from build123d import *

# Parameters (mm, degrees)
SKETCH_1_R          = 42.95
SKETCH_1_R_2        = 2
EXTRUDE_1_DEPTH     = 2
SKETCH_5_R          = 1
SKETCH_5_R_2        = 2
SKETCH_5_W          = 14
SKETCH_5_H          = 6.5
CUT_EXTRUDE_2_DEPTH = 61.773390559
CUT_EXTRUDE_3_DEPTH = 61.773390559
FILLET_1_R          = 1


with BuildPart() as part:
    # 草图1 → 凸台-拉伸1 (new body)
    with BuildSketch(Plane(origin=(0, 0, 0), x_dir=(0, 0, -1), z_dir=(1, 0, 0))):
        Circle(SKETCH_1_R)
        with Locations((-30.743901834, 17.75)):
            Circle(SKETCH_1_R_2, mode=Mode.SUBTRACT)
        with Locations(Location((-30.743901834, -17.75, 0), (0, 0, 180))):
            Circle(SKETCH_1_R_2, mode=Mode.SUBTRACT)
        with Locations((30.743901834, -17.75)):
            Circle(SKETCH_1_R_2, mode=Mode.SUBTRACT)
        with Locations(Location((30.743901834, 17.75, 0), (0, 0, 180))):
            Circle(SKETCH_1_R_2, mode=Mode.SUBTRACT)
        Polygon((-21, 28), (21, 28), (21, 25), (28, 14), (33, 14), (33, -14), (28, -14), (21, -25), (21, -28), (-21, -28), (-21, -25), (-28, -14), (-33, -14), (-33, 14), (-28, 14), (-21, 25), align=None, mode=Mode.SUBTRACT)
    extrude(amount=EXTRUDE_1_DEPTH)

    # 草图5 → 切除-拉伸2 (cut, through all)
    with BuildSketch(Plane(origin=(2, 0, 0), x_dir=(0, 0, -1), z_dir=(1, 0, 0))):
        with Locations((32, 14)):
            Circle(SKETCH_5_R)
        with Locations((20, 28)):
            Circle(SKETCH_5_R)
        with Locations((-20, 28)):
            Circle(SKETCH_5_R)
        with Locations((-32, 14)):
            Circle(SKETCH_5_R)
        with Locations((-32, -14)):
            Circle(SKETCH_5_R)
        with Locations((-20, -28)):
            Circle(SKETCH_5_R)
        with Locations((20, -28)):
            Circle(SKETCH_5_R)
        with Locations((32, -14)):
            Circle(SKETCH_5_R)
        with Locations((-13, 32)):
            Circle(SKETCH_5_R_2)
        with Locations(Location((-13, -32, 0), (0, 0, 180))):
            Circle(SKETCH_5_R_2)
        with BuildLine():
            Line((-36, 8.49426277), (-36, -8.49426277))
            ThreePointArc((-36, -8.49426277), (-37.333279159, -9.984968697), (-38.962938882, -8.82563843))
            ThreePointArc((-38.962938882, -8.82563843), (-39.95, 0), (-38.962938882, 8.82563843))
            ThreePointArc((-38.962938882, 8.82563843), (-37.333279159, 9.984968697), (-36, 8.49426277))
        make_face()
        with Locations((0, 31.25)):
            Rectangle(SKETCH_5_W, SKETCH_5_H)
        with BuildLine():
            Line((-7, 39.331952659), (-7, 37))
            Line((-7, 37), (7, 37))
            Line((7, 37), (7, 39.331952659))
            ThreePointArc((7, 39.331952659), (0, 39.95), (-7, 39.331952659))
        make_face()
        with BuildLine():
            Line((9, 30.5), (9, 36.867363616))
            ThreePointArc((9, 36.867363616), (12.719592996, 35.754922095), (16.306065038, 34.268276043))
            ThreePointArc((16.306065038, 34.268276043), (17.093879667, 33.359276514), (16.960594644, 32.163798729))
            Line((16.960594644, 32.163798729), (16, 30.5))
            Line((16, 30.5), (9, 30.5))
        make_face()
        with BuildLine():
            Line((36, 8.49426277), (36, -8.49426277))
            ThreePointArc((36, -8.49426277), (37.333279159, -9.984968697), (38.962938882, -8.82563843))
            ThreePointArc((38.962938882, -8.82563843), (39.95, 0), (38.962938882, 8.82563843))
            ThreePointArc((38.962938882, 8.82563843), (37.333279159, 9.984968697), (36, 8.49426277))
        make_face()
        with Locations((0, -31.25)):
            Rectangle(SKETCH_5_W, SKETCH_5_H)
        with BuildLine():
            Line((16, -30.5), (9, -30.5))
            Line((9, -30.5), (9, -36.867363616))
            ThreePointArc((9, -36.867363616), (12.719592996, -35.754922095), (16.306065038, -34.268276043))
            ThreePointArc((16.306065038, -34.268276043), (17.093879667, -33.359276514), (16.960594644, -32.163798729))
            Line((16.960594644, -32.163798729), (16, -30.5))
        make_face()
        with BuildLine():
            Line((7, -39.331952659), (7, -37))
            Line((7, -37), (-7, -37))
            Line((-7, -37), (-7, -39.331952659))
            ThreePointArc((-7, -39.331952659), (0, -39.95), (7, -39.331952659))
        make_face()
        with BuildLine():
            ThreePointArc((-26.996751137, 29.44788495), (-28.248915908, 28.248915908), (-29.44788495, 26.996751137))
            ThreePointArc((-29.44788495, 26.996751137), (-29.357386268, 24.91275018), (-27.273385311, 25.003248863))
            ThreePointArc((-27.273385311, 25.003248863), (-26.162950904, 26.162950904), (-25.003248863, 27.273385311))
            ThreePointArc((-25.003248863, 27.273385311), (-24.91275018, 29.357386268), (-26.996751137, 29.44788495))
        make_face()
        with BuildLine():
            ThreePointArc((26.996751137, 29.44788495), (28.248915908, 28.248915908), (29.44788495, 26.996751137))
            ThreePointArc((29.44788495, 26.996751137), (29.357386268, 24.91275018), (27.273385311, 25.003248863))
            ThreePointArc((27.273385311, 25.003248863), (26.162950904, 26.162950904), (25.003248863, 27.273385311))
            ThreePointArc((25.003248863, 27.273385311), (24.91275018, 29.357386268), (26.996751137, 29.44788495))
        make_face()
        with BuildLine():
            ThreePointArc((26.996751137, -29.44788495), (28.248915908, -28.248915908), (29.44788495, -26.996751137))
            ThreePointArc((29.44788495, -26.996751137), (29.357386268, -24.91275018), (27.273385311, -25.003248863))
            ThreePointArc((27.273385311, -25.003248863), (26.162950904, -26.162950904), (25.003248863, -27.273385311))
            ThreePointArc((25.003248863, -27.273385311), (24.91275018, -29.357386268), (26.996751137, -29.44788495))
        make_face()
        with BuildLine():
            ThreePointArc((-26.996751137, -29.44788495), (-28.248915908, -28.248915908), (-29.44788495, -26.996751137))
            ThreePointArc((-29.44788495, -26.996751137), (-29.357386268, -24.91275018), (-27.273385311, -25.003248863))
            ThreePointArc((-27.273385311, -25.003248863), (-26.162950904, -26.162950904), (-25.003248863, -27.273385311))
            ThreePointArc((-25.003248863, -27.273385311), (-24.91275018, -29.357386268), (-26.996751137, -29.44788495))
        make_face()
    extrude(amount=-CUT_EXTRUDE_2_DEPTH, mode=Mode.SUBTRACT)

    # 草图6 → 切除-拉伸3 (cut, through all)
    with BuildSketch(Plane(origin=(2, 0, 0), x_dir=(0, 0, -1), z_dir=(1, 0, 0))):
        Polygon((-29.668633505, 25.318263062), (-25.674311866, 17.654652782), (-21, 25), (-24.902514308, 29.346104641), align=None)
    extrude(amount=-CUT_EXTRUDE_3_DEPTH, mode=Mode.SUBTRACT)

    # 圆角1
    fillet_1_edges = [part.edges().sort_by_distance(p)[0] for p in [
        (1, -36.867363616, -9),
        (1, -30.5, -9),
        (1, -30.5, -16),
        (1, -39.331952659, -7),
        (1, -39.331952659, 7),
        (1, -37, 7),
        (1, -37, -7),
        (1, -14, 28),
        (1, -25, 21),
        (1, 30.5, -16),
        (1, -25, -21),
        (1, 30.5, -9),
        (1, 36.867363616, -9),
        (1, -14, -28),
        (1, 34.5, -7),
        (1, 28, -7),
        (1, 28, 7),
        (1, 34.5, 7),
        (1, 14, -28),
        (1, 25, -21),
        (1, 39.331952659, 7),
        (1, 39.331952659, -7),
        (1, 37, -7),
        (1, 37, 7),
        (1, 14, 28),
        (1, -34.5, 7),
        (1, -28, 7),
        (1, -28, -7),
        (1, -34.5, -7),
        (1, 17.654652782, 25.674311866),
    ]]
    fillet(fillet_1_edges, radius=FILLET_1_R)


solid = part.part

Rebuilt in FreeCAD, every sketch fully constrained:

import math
import FreeCAD as App
import Part
import Sketcher
Q = App.Units.Quantity


def edges_at(feature, points):
    """Names of the edges that pass closest to the given points."""
    edges = feature.Shape.Edges
    near = lambda p: min(range(len(edges)), key=lambda i: edges[i].distToShape(Part.Vertex(*p))[0])
    return sorted({f"Edge{near(p) + 1}" for p in points})


def add_polygon(sketch, points):
    """Adds a closed chain of lines whose ends are joined by coincident constraints."""
    first, n = sketch.GeometryCount, len(points)
    for a, b in zip(points, points[1:] + points[:1]):
        sketch.addGeometry(Part.LineSegment(App.Vector(*a, 0), App.Vector(*b, 0)), False)
    for i in range(n):
        sketch.addConstraint(Sketcher.Constraint("Coincident", first + i, 2, first + (i + 1) % n, 1))

doc = App.newDocument("Part")
body = doc.addObject("PartDesign::Body", "Body")

# Sketch on YZ plane
sketch1 = body.newObject("Sketcher::SketchObject", "Sketch")
sketch1.AttachmentSupport = (doc.getObject("YZ_Plane"), [""])
sketch1.MapMode = "FlatFace"
sketch1.addGeometry(Part.Circle(App.Vector(0, 0, 0), App.Vector(0, 0, 1), 43), False)  # 0
sketch1.addGeometry(Part.Circle(App.Vector(-17.8, 30.7, 0), App.Vector(0, 0, 1), 2), False)  # 1
sketch1.addGeometry(Part.Circle(App.Vector(-17.8, -30.7, 0), App.Vector(0, 0, 1), 2), False)  # 2
sketch1.addGeometry(Part.Circle(App.Vector(17.8, 30.7, 0), App.Vector(0, 0, 1), 2), False)  # 3
add_polygon(sketch1, [(25, 21), (28, 21), (28, -21), (25, -21), (14, -28), (14, -33), (-14, -33), (-14, -28), (-25, -21), (-28, -21), (-28, 21), (-25, 21), (-14, 28), (-14, 33), (14, 33), (14, 28)])  # lines 4-19
sketch1.addGeometry(Part.Circle(App.Vector(17.8, -30.7, 0), App.Vector(0, 0, 1), 2), False)  # 20
sketch1.addConstraint([
    Sketcher.Constraint("Horizontal", 4),
    Sketcher.Constraint("Vertical", 5),
    Sketcher.Constraint("Horizontal", 6),
    Sketcher.Constraint("Vertical", 8),
    Sketcher.Constraint("Horizontal", 9),
    Sketcher.Constraint("Vertical", 10),
    Sketcher.Constraint("Horizontal", 12),
    Sketcher.Constraint("Vertical", 13),
    Sketcher.Constraint("Horizontal", 14),
    Sketcher.Constraint("Vertical", 16),
    Sketcher.Constraint("Horizontal", 17),
    Sketcher.Constraint("Vertical", 18),
    Sketcher.Constraint("Coincident", 0, 3, -1, 1),
    Sketcher.Constraint("Equal", 1, 2),
    Sketcher.Constraint("Equal", 2, 3),
    Sketcher.Constraint("Equal", 3, 20),
    Sketcher.Constraint("Symmetric", 2, 3, 3, 3, -1, 1),
    Sketcher.Constraint("Symmetric", 1, 3, 20, 3, -1, 1),
    Sketcher.Constraint("Symmetric", 4, 2, 12, 2, -1, 1),
    Sketcher.Constraint("Symmetric", 6, 2, 14, 2, -1, 1),
    Sketcher.Constraint("Symmetric", 7, 2, 15, 2, -1, 1),
    Sketcher.Constraint("Symmetric", 9, 2, 17, 2, -1, 1),
    Sketcher.Constraint("Symmetric", 1, 3, 3, 3, -2),
    Sketcher.Constraint("Symmetric", 7, 2, 10, 2, -2),
    Sketcher.Constraint("Symmetric", 6, 2, 11, 2, -2),
    Sketcher.Constraint("Parallel", 11, 19),
    Sketcher.Constraint("Horizontal", 15, 2, 18, 2),
    Sketcher.Constraint("Diameter", 1, Q("4 mm")),
    Sketcher.Constraint("Diameter", 0, Q("85.9 mm")),
    Sketcher.Constraint("DistanceX", 4, 1, 4, 2, Q("3 mm")),
    Sketcher.Constraint("DistanceX", 9, 2, 9, 1, Q("28 mm")),
    Sketcher.Constraint("DistanceY", 5, 2, 5, 1, Q("42 mm")),
    Sketcher.Constraint("DistanceY", 8, 2, 8, 1, Q("5 mm")),
    Sketcher.Constraint("DistanceX", -1, 1, 4, 2, Q("28 mm")),
    Sketcher.Constraint("DistanceY", 7, 2, -1, 1, Q("28 mm")),
    Sketcher.Constraint("DistanceX", 1, 3, 3, 3, Q("35.5 mm")),
    Sketcher.Constraint("DistanceY", -1, 1, 1, 3, Q("30.743902 mm")),
])
pad1 = body.newObject("PartDesign::Pad", "Pad")
pad1.Profile = sketch1
pad1.Length = 2

# Sketch on YZ plane
sketch2 = body.newObject("Sketcher::SketchObject", "Sketch001")
sketch2.AttachmentSupport = (doc.getObject("YZ_Plane"), [""])
sketch2.MapMode = "FlatFace"
sketch2.AttachmentOffset = App.Placement(App.Vector(0, 0, 2), App.Rotation())
sketch2.addGeometry(Part.Circle(App.Vector(14, -32, 0), App.Vector(0, 0, 1), 1), False)  # 0
sketch2.addGeometry(Part.Circle(App.Vector(28, -20, 0), App.Vector(0, 0, 1), 1), False)  # 1
sketch2.addGeometry(Part.Circle(App.Vector(28, 20, 0), App.Vector(0, 0, 1), 1), False)  # 2
sketch2.addGeometry(Part.Circle(App.Vector(14, 32, 0), App.Vector(0, 0, 1), 1), False)  # 3
sketch2.addGeometry(Part.Circle(App.Vector(-14, 32, 0), App.Vector(0, 0, 1), 1), False)  # 4
sketch2.addGeometry(Part.Circle(App.Vector(-28, 20, 0), App.Vector(0, 0, 1), 1), False)  # 5
sketch2.addGeometry(Part.Circle(App.Vector(-28, -20, 0), App.Vector(0, 0, 1), 1), False)  # 6
sketch2.addGeometry(Part.Circle(App.Vector(-14, -32, 0), App.Vector(0, 0, 1), 1), False)  # 7
sketch2.addGeometry(Part.Circle(App.Vector(32, 13, 0), App.Vector(0, 0, 1), 2), False)  # 8
sketch2.addGeometry(Part.Circle(App.Vector(-32, 13, 0), App.Vector(0, 0, 1), 2), False)  # 9
sketch2.addGeometry(Part.LineSegment(App.Vector(-8.5, 36, 0), App.Vector(8.5, 36, 0)), False)  # 10
sketch2.addGeometry(Part.ArcOfCircle(Part.Circle(App.Vector(8.5, 37.5, 0), App.Vector(0, 0, 1), 1.5), math.radians(-90), math.radians(77)), False)  # 11
sketch2.addGeometry(Part.ArcOfCircle(Part.Circle(App.Vector(0, 0, 0), App.Vector(0, 0, 1), 40), math.radians(77), math.radians(103)), False)  # 12
sketch2.addGeometry(Part.ArcOfCircle(Part.Circle(App.Vector(-8.5, 37.5, 0), App.Vector(0, 0, 1), 1.5), math.radians(103), math.radians(270)), False)  # 13
add_polygon(sketch2, [(34.5, 7), (28, 7), (28, -7), (34.5, -7)])  # lines 14-17
sketch2.addGeometry(Part.LineSegment(App.Vector(39.3, 7, 0), App.Vector(37, 7, 0)), False)  # 18
sketch2.addGeometry(Part.LineSegment(App.Vector(37, 7, 0), App.Vector(37, -7, 0)), False)  # 19
sketch2.addGeometry(Part.LineSegment(App.Vector(37, -7, 0), App.Vector(39.3, -7, 0)), False)  # 20
sketch2.addGeometry(Part.ArcOfCircle(Part.Circle(App.Vector(0, 0, 0), App.Vector(0, 0, 1), 39.9), math.radians(-10), math.radians(10)), False)  # 21
sketch2.addGeometry(Part.LineSegment(App.Vector(36.9, -9, 0), App.Vector(30.5, -9, 0)), False)  # 22
sketch2.addGeometry(Part.LineSegment(App.Vector(30.5, -9, 0), App.Vector(30.5, -16, 0)), False)  # 23
sketch2.addGeometry(Part.LineSegment(App.Vector(30.5, -16, 0), App.Vector(32.2, -17, 0)), False)  # 24
sketch2.addGeometry(Part.ArcOfCircle(Part.Circle(App.Vector(32.9, -15.7, 0), App.Vector(0, 0, 1), 1.5), math.radians(-120), math.radians(-25)), False)  # 25
sketch2.addGeometry(Part.ArcOfCircle(Part.Circle(App.Vector(0, 0, 0), App.Vector(0, 0, 1), 37.9), math.radians(-25.45), math.radians(-13.72)), False)  # 26
sketch2.addGeometry(Part.LineSegment(App.Vector(8.5, -36, 0), App.Vector(-8.5, -36, 0)), False)  # 27
sketch2.addGeometry(Part.ArcOfCircle(Part.Circle(App.Vector(-8.5, -37.5, 0), App.Vector(0, 0, 1), 1.5), math.radians(90), math.radians(257)), False)  # 28
sketch2.addGeometry(Part.ArcOfCircle(Part.Circle(App.Vector(0, 0, 0), App.Vector(0, 0, 1), 40), math.radians(-103), math.radians(-77)), False)  # 29
sketch2.addGeometry(Part.ArcOfCircle(Part.Circle(App.Vector(8.5, -37.5, 0), App.Vector(0, 0, 1), 1.5), math.radians(-77), math.radians(90)), False)  # 30
add_polygon(sketch2, [(-28, 7), (-34.5, 7), (-34.5, -7), (-28, -7)])  # lines 31-34
sketch2.addGeometry(Part.LineSegment(App.Vector(-30.5, -16, 0), App.Vector(-30.5, -9, 0)), False)  # 35
sketch2.addGeometry(Part.LineSegment(App.Vector(-30.5, -9, 0), App.Vector(-36.9, -9, 0)), False)  # 36
sketch2.addGeometry(Part.ArcOfCircle(Part.Circle(App.Vector(0, 0, 0), App.Vector(0, 0, 1), 37.9), math.radians(-166.28), math.radians(-154.55)), False)  # 37
sketch2.addGeometry(Part.ArcOfCircle(Part.Circle(App.Vector(-32.9, -15.7, 0), App.Vector(0, 0, 1), 1.5), math.radians(-155), math.radians(-60)), False)  # 38
sketch2.addGeometry(Part.LineSegment(App.Vector(-32.2, -17, 0), App.Vector(-30.5, -16, 0)), False)  # 39
sketch2.addGeometry(Part.LineSegment(App.Vector(-39.3, -7, 0), App.Vector(-37, -7, 0)), False)  # 40
sketch2.addGeometry(Part.LineSegment(App.Vector(-37, -7, 0), App.Vector(-37, 7, 0)), False)  # 41
sketch2.addGeometry(Part.LineSegment(App.Vector(-37, 7, 0), App.Vector(-39.3, 7, 0)), False)  # 42
sketch2.addGeometry(Part.ArcOfCircle(Part.Circle(App.Vector(0, 0, 0), App.Vector(0, 0, 1), 39.9), math.radians(170), math.radians(190)), False)  # 43
sketch2.addGeometry(Part.ArcOfCircle(Part.Circle(App.Vector(0, 0, 0), App.Vector(0, 0, 1), 40), math.radians(42.51), math.radians(47.49)), False)  # 44
sketch2.addGeometry(Part.ArcOfCircle(Part.Circle(App.Vector(26, 28.4, 0), App.Vector(0, 0, 1), 1.5), math.radians(47), math.radians(227)), False)  # 45
sketch2.addGeometry(Part.ArcOfCircle(Part.Circle(App.Vector(0, 0, 0), App.Vector(0, 0, 1), 37), math.radians(42.51), math.radians(47.49)), False)  # 46
sketch2.addGeometry(Part.ArcOfCircle(Part.Circle(App.Vector(28.4, 26, 0), App.Vector(0, 0, 1), 1.5), math.radians(-137), math.radians(43)), False)  # 47
sketch2.addGeometry(Part.ArcOfCircle(Part.Circle(App.Vector(0, 0, 0), App.Vector(0, 0, 1), 40), math.radians(-47.49), math.radians(-42.51)), False)  # 48
sketch2.addGeometry(Part.ArcOfCircle(Part.Circle(App.Vector(28.4, -26, 0), App.Vector(0, 0, 1), 1.5), math.radians(-43), math.radians(137)), False)  # 49
sketch2.addGeometry(Part.ArcOfCircle(Part.Circle(App.Vector(0, 0, 0), App.Vector(0, 0, 1), 37), math.radians(-47.49), math.radians(-42.51)), False)  # 50
sketch2.addGeometry(Part.ArcOfCircle(Part.Circle(App.Vector(26, -28.4, 0), App.Vector(0, 0, 1), 1.5), math.radians(133), math.radians(313)), False)  # 51
sketch2.addGeometry(Part.ArcOfCircle(Part.Circle(App.Vector(0, 0, 0), App.Vector(0, 0, 1), 40), math.radians(-137.49), math.radians(-132.51)), False)  # 52
sketch2.addGeometry(Part.ArcOfCircle(Part.Circle(App.Vector(-26, -28.4, 0), App.Vector(0, 0, 1), 1.5), math.radians(-133), math.radians(47)), False)  # 53
sketch2.addGeometry(Part.ArcOfCircle(Part.Circle(App.Vector(0, 0, 0), App.Vector(0, 0, 1), 37), math.radians(-137.49), math.radians(-132.51)), False)  # 54
sketch2.addGeometry(Part.ArcOfCircle(Part.Circle(App.Vector(-28.4, -26, 0), App.Vector(0, 0, 1), 1.5), math.radians(43), math.radians(223)), False)  # 55
sketch2.addGeometry(Part.ArcOfCircle(Part.Circle(App.Vector(0, 0, 0), App.Vector(0, 0, 1), 40), math.radians(132.51), math.radians(137.49)), False)  # 56
sketch2.addGeometry(Part.ArcOfCircle(Part.Circle(App.Vector(-28.4, 26, 0), App.Vector(0, 0, 1), 1.5), math.radians(137), math.radians(317)), False)  # 57
sketch2.addGeometry(Part.ArcOfCircle(Part.Circle(App.Vector(0, 0, 0), App.Vector(0, 0, 1), 37), math.radians(132.51), math.radians(137.49)), False)  # 58
sketch2.addGeometry(Part.ArcOfCircle(Part.Circle(App.Vector(-26, 28.4, 0), App.Vector(0, 0, 1), 1.5), math.radians(-47), math.radians(133)), False)  # 59
sketch2.addConstraint([
    Sketcher.Constraint("Tangent", 10, 2, 11, 1),
    Sketcher.Constraint("Tangent", 11, 2, 12, 1),
    Sketcher.Constraint("Tangent", 12, 2, 13, 1),
    Sketcher.Constraint("Tangent", 13, 2, 10, 1),
    Sketcher.Constraint("Coincident", 18, 2, 19, 1),
    Sketcher.Constraint("Coincident", 19, 2, 20, 1),
    Sketcher.Constraint("Coincident", 20, 2, 21, 1),
    Sketcher.Constraint("Coincident", 21, 2, 18, 1),
    Sketcher.Constraint("Coincident", 22, 2, 23, 1),
    Sketcher.Constraint("Coincident", 23, 2, 24, 1),
    Sketcher.Constraint("Tangent", 24, 2, 25, 1),
    Sketcher.Constraint("Tangent", 25, 2, 26, 1),
    Sketcher.Constraint("Coincident", 26, 2, 22, 1),
    Sketcher.Constraint("Tangent", 27, 2, 28, 1),
    Sketcher.Constraint("Tangent", 28, 2, 29, 1),
    Sketcher.Constraint("Tangent", 29, 2, 30, 1),
    Sketcher.Constraint("Tangent", 30, 2, 27, 1),
    Sketcher.Constraint("Coincident", 35, 2, 36, 1),
    Sketcher.Constraint("Coincident", 36, 2, 37, 1),
    Sketcher.Constraint("Tangent", 37, 2, 38, 1),
    Sketcher.Constraint("Tangent", 38, 2, 39, 1),
    Sketcher.Constraint("Coincident", 39, 2, 35, 1),
    Sketcher.Constraint("Coincident", 40, 2, 41, 1),
    Sketcher.Constraint("Coincident", 41, 2, 42, 1),
    Sketcher.Constraint("Coincident", 42, 2, 43, 1),
    Sketcher.Constraint("Coincident", 43, 2, 40, 1),
    Sketcher.Constraint("Tangent", 44, 2, 45, 1),
    Sketcher.Constraint("Tangent", 45, 2, 46, 2),
    Sketcher.Constraint("Tangent", 46, 1, 47, 1),
    Sketcher.Constraint("Tangent", 47, 2, 44, 1),
    Sketcher.Constraint("Tangent", 48, 2, 49, 1),
    Sketcher.Constraint("Tangent", 49, 2, 50, 2),
    Sketcher.Constraint("Tangent", 50, 1, 51, 1),
    Sketcher.Constraint("Tangent", 51, 2, 48, 1),
    Sketcher.Constraint("Tangent", 52, 2, 53, 1),
    Sketcher.Constraint("Tangent", 53, 2, 54, 2),
    Sketcher.Constraint("Tangent", 54, 1, 55, 1),
    Sketcher.Constraint("Tangent", 55, 2, 52, 1),
    Sketcher.Constraint("Tangent", 56, 2, 57, 1),
    Sketcher.Constraint("Tangent", 57, 2, 58, 2),
    Sketcher.Constraint("Tangent", 58, 1, 59, 1),
    Sketcher.Constraint("Tangent", 59, 2, 56, 1),
    Sketcher.Constraint("Horizontal", 10),
    Sketcher.Constraint("Horizontal", 14),
    Sketcher.Constraint("Vertical", 15),
    Sketcher.Constraint("Horizontal", 16),
    Sketcher.Constraint("Vertical", 17),
    Sketcher.Constraint("Horizontal", 18),
    Sketcher.Constraint("Vertical", 19),
    Sketcher.Constraint("Horizontal", 20),
    Sketcher.Constraint("Horizontal", 22),
    Sketcher.Constraint("Vertical", 23),
    Sketcher.Constraint("Horizontal", 27),
    Sketcher.Constraint("Horizontal", 31),
    Sketcher.Constraint("Vertical", 32),
    Sketcher.Constraint("Horizontal", 33),
    Sketcher.Constraint("Vertical", 34),
    Sketcher.Constraint("Vertical", 35),
    Sketcher.Constraint("Horizontal", 36),
    Sketcher.Constraint("Horizontal", 40),
    Sketcher.Constraint("Vertical", 41),
    Sketcher.Constraint("Horizontal", 42),
    Sketcher.Constraint("Coincident", 12, 3, -1, 1),
    Sketcher.Constraint("Coincident", 21, 3, -1, 1),
    Sketcher.Constraint("Coincident", 26, 3, -1, 1),
    Sketcher.Constraint("Coincident", 29, 3, -1, 1),
    Sketcher.Constraint("Coincident", 37, 3, -1, 1),
    Sketcher.Constraint("Coincident", 43, 3, -1, 1),
    Sketcher.Constraint("Coincident", 44, 3, -1, 1),
    Sketcher.Constraint("Coincident", 46, 3, -1, 1),
    Sketcher.Constraint("Coincident", 48, 3, -1, 1),
    Sketcher.Constraint("Coincident", 50, 3, -1, 1),
    Sketcher.Constraint("Coincident", 52, 3, -1, 1),
    Sketcher.Constraint("Coincident", 54, 3, -1, 1),
    Sketcher.Constraint("Coincident", 56, 3, -1, 1),
    Sketcher.Constraint("Coincident", 58, 3, -1, 1),
    Sketcher.Constraint("Equal", 0, 1),
    Sketcher.Constraint("Equal", 1, 2),
    Sketcher.Constraint("Equal", 2, 3),
    Sketcher.Constraint("Equal", 3, 4),
    Sketcher.Constraint("Equal", 4, 5),
    Sketcher.Constraint("Equal", 5, 6),
    Sketcher.Constraint("Equal", 6, 7),
    Sketcher.Constraint("Equal", 8, 9),
    Sketcher.Constraint("Equal", 11, 13),
    Sketcher.Constraint("Equal", 12, 21),
    Sketcher.Constraint("Equal", 13, 25),
    Sketcher.Constraint("Equal", 25, 28),
    Sketcher.Constraint("Equal", 21, 29),
    Sketcher.Constraint("Equal", 28, 30),
    Sketcher.Constraint("Equal", 26, 37),
    Sketcher.Constraint("Equal", 30, 38),
    Sketcher.Constraint("Equal", 29, 43),
    Sketcher.Constraint("Equal", 43, 44),
    Sketcher.Constraint("Equal", 44, 48),
    Sketcher.Constraint("Equal", 47, 49),
    Sketcher.Constraint("Equal", 48, 52),
    Sketcher.Constraint("Equal", 51, 53),
    Sketcher.Constraint("Equal", 52, 56),
    Sketcher.Constraint("Equal", 55, 57),
    Sketcher.Constraint("Symmetric", 0, 3, 4, 3, -1, 1),
    Sketcher.Constraint("Symmetric", 1, 3, 5, 3, -1, 1),
    Sketcher.Constraint("Symmetric", 2, 3, 6, 3, -1, 1),
    Sketcher.Constraint("Symmetric", 3, 3, 7, 3, -1, 1),
    Sketcher.Constraint("Symmetric", 16, 2, 31, 2, -1, 1),
    Sketcher.Constraint("Symmetric", 14, 2, 33, 2, -1, 1),
    Sketcher.Constraint("Symmetric", 18, 2, 40, 2, -1, 1),
    Sketcher.Constraint("Symmetric", 3, 3, 4, 3, -2),
    Sketcher.Constraint("Symmetric", 2, 3, 5, 3, -2),
    Sketcher.Constraint("Symmetric", 8, 3, 9, 3, -2),
    Sketcher.Constraint("Symmetric", 22, 2, 35, 2, -2),
    Sketcher.Constraint("Symmetric", 24, 2, 38, 2, -2),
    Sketcher.Constraint("Horizontal", 51, 3, 53, 3),
    Sketcher.Constraint("Horizontal", 49, 3, 55, 3),
    Sketcher.Constraint("Horizontal", 47, 3, 57, 3),
    Sketcher.Constraint("Horizontal", 45, 3, 59, 3),
    Sketcher.Constraint("Horizontal", 17, 2, 18, 2),
    Sketcher.Constraint("Horizontal", 16, 2, 19, 2),
    Sketcher.Constraint("Horizontal", 21, 2, 31, 2),
    Sketcher.Constraint("Horizontal", 34, 2, 41, 2),
    Sketcher.Constraint("Vertical", 13, 3, 28, 3),
    Sketcher.Constraint("Vertical", 47, 3, 49, 3),
    Sketcher.Constraint("Vertical", 45, 3, 51, 3),
    Sketcher.Constraint("Vertical", 2, 3, 14, 2),
    Sketcher.Constraint("Diameter", 0, Q("2 mm")),
    Sketcher.Constraint("Diameter", 8, Q("4 mm")),
    Sketcher.Constraint("Radius", 46, Q("37 mm")),
    Sketcher.Constraint("Radius", 11, Q("1.5 mm")),
    Sketcher.Constraint("DistanceY", 15, 2, 15, 1, Q("14 mm")),
    Sketcher.Constraint("DistanceY", 23, 2, 23, 1, Q("7 mm")),
    Sketcher.Constraint("Angle", 24, Q("-30 deg")),
    Sketcher.Constraint("Radius", 12, Q("39.95 mm")),
    Sketcher.Constraint("Radius", 26, Q("37.95 mm")),
    Sketcher.Constraint("DistanceX", 14, 2, 14, 1, Q("6.5 mm")),
    Sketcher.Constraint("DistanceX", -1, 1, 0, 3, Q("14 mm")),
    Sketcher.Constraint("DistanceY", 0, 3, -1, 1, Q("32 mm")),
    Sketcher.Constraint("DistanceX", -1, 1, 1, 3, Q("28 mm")),
    Sketcher.Constraint("DistanceY", 1, 3, -1, 1, Q("20 mm")),
    Sketcher.Constraint("DistanceX", -1, 1, 8, 3, Q("32 mm")),
    Sketcher.Constraint("DistanceY", -1, 1, 8, 3, Q("13 mm")),
    Sketcher.Constraint("DistanceX", -1, 1, 45, 3, Q("26 mm")),
    Sketcher.Constraint("DistanceY", -1, 1, 47, 3, Q("26 mm")),
    Sketcher.Constraint("DistanceY", -1, 1, 10, 2, Q("36 mm")),
    Sketcher.Constraint("DistanceX", -1, 1, 18, 2, Q("37 mm")),
    Sketcher.Constraint("DistanceY", 22, 2, -1, 1, Q("9 mm")),
    Sketcher.Constraint("DistanceX", -1, 1, 22, 2, Q("30.5 mm")),
])
pocket1 = body.newObject("PartDesign::Pocket", "Pocket")
pocket1.Profile = sketch2
pocket1.Type = "ThroughAll"

# Sketch on YZ plane
sketch3 = body.newObject("Sketcher::SketchObject", "Sketch002")
sketch3.AttachmentSupport = (doc.getObject("YZ_Plane"), [""])
sketch3.MapMode = "FlatFace"
sketch3.AttachmentOffset = App.Placement(App.Vector(0, 0, 2), App.Rotation())
add_polygon(sketch3, [(25, 30), (18, 26), (25, 21), (29, 25)])  # lines 0-3
sketch3.addConstraint([
    Sketcher.Constraint("DistanceX", -1, 1, 1, 2, Q("25 mm")),
    Sketcher.Constraint("DistanceY", -1, 1, 1, 2, Q("21 mm")),
    Sketcher.Constraint("Distance", 0, Q("8.642079 mm")),
    Sketcher.Constraint("Distance", 1, Q("8.70651 mm")),
    Sketcher.Constraint("DistanceY", -1, 1, 0, 2, Q("25.674312 mm")),
    Sketcher.Constraint("DistanceX", 0, 2, 2, 2, Q("11.691452 mm")),
    Sketcher.Constraint("DistanceX", 3, 2, 2, 2, Q("4.027842 mm")),
    Sketcher.Constraint("DistanceY", 2, 2, 3, 2, Q("4.766119 mm")),
])
pocket2 = body.newObject("PartDesign::Pocket", "Pocket001")
pocket2.Profile = sketch3
pocket2.Type = "ThroughAll"
doc.recompute()

fillet = body.newObject("PartDesign::Fillet", "Fillet")
fillet.Base = (pocket2, edges_at(pocket2, [
    (1, -36.867, -9),
    (1, -30.5, -9),
    (1, -30.5, -16),
    (1, -39.332, -7),
    (1, -39.332, 7),
    (1, -37, 7),
    (1, -37, -7),
    (1, -14, 28),
    (1, -25, 21),
    (1, 30.5, -16),
    (1, -25, -21),
    (1, 30.5, -9),
    (1, 36.867, -9),
    (1, -14, -28),
    (1, 34.5, -7),
    (1, 28, -7),
    (1, 28, 7),
    (1, 34.5, 7),
    (1, 14, -28),
    (1, 25, -21),
    (1, 39.332, 7),
    (1, 39.332, -7),
    (1, 37, -7),
    (1, 37, 7),
    (1, 14, 28),
    (1, -34.5, 7),
    (1, -28, 7),
    (1, -28, -7),
    (1, -34.5, -7),
    (1, 17.655, 25.674),
]))
fillet.Radius = 1

doc.recompute()
